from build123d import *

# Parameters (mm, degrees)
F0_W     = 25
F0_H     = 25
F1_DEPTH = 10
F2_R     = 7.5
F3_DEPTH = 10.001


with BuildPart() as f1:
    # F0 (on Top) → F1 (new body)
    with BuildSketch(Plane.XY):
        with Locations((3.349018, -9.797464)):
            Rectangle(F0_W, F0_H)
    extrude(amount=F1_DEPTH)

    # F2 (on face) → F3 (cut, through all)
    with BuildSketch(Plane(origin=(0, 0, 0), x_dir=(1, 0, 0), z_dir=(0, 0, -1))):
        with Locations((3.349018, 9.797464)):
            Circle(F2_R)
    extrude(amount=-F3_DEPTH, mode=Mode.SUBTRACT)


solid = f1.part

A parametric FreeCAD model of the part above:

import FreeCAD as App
import Part
import Sketcher
from FreeCAD import Vector
Q = App.Units.Quantity


def add_polygon(sketch, points):
    """Adds a closed chain of lines whose ends are joined by coincident constraints."""
    first, n = sketch.GeometryCount, len(points)
    for a, b in zip(points, points[1:] + points[:1]):
        sketch.addGeometry(Part.LineSegment(App.Vector(*a, 0), App.Vector(*b, 0)), False)
    for i in range(n):
        sketch.addConstraint(Sketcher.Constraint("Coincident", first + i, 2, first + (i + 1) % n, 1))

doc = App.newDocument("Part")
body = doc.addObject("PartDesign::Body", "Body")

sketch1 = body.newObject("Sketcher::SketchObject", "Sketch")
sketch1.AttachmentSupport = (doc.getObject("XY_Plane"), [""])
sketch1.MapMode = "FlatFace"
add_polygon(sketch1, [(-9.150982, 2.702536), (-9.150982, -22.297464), (15.849018, -22.297464), (15.849018, 2.702536)])
sketch1.addConstraint(Sketcher.Constraint("Vertical", 0))
sketch1.addConstraint(Sketcher.Constraint("Horizontal", 1))
sketch1.addConstraint(Sketcher.Constraint("Vertical", 2))
sketch1.addConstraint(Sketcher.Constraint("Horizontal", 3))
sketch1.addConstraint(Sketcher.Constraint("Equal", 3, 0))
sketch1.addConstraint(Sketcher.Constraint("DistanceX", 1, 1, 1, 2, Q("25 mm")))
sketch1.addConstraint(Sketcher.Constraint("DistanceX", 0, 2, -1, 1, Q("9.150982 mm")))
sketch1.addConstraint(Sketcher.Constraint("DistanceY", 0, 2, -1, 1, Q("22.297464 mm")))
pad1 = body.newObject("PartDesign::Pad", "Pad")
pad1.Profile = sketch1
pad1.Length = 10

sketch2 = body.newObject("Sketcher::SketchObject", "Sketch001")
sketch2.AttachmentSupport = (doc.getObject("XY_Plane"), [""])
sketch2.MapMode = "FlatFace"
sketch2.addGeometry(Part.Circle(Vector(3.349018, -9.797464, 0), Vector(0, 0, 1), 7.5), False)
sketch2.addConstraint(Sketcher.Constraint("Diameter", 0, Q("15 mm")))
sketch2.addConstraint(Sketcher.Constraint("DistanceX", -1, 1, 0, 3, Q("3.349018 mm")))
sketch2.addConstraint(Sketcher.Constraint("DistanceY", 0, 3, -1, 1, Q("9.797464 mm")))
pocket1 = body.newObject("PartDesign::Pocket", "Pocket")
pocket1.Profile = sketch2
pocket1.Type = "ThroughAll"
pocket1.Reversed = True

doc.recompute()
